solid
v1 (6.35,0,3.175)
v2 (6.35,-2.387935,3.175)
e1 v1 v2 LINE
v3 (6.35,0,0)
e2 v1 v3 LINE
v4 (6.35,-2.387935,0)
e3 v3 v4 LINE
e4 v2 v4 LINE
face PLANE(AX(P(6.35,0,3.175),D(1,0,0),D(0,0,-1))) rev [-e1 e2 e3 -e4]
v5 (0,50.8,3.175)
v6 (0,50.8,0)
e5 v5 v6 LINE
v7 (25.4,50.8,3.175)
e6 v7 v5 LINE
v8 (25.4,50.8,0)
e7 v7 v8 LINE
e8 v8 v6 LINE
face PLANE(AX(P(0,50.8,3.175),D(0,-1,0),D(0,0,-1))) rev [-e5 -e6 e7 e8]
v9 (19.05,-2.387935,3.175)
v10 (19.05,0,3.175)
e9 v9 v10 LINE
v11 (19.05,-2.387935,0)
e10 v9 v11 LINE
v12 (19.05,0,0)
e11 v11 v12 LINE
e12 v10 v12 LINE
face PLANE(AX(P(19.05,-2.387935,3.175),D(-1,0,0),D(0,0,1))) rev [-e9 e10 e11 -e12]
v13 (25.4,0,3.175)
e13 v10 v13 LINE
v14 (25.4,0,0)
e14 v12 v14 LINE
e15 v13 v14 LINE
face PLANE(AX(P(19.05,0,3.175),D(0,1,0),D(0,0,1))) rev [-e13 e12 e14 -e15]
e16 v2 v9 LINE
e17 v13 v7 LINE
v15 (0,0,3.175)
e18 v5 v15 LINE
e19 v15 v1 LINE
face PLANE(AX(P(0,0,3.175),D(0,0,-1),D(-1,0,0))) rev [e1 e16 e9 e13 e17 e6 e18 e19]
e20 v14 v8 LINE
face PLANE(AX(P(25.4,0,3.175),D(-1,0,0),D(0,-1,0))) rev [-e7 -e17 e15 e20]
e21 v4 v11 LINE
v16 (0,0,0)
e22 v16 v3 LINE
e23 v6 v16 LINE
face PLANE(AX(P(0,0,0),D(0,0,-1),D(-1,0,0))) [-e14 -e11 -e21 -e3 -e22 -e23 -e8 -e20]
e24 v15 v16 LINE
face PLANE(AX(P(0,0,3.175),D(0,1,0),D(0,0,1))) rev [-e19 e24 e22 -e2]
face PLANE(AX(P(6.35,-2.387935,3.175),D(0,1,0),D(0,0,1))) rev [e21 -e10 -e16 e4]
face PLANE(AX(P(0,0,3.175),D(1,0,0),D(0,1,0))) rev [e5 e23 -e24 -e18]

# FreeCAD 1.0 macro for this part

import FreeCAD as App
import Part
import Sketcher

V = App.Vector
Q = App.Units.Quantity


def add_polygon(sketch, points):
    """Adds a closed chain of lines whose ends are joined by coincident constraints."""
    first, n = sketch.GeometryCount, len(points)
    for a, b in zip(points, points[1:] + points[:1]):
        sketch.addGeometry(Part.LineSegment(App.Vector(*a, 0), App.Vector(*b, 0)), False)
    for i in range(n):
        sketch.addConstraint(Sketcher.Constraint("Coincident", first + i, 2, first + (i + 1) % n, 1))

doc = App.newDocument("Part")
body = doc.addObject("PartDesign::Body", "Body")

# Sketch on XY plane
sketch1 = body.newObject("Sketcher::SketchObject", "Sketch")
sketch1.AttachmentSupport = (doc.getObject("XY_Plane"), [""])
sketch1.MapMode = "FlatFace"
add_polygon(sketch1, [(6.3, 0), (6.3, -2.4), (19.1, -2.4), (19.1, 0), (25.4, 0), (25.4, 50.8), (0, 50.8), (0, 0)])  # lines 0-7
sketch1.addConstraint([
    Sketcher.Constraint("Vertical", 0),
    Sketcher.Constraint("Horizontal", 1),
    Sketcher.Constraint("Vertical", 2),
    Sketcher.Constraint("Horizontal", 3),
    Sketcher.Constraint("Vertical", 4),
    Sketcher.Constraint("Horizontal", 5),
    Sketcher.Constraint("Vertical", 6),
    Sketcher.Constraint("Horizontal", 7),
    Sketcher.Constraint("Coincident", 6, 2, -1, 1),
    Sketcher.Constraint("PointOnObject", 2, 2, -1),
    Sketcher.Constraint("Equal", 3, 7),
    Sketcher.Constraint("DistanceX", 5, 2, 5, 1, Q("1 in")),
    Sketcher.Constraint("DistanceY", 4, 1, 4, 2, Q("2 in")),
    Sketcher.Constraint("DistanceX", 1, 1, 1, 2, Q("0.5 in")),
    Sketcher.Constraint("DistanceY", 0, 2, 0, 1, 2.387935),
])
pad1 = body.newObject("PartDesign::Pad", "Pad")
pad1.Profile = sketch1
pad1.Length = Q("0.125 in")

doc.recompute()
